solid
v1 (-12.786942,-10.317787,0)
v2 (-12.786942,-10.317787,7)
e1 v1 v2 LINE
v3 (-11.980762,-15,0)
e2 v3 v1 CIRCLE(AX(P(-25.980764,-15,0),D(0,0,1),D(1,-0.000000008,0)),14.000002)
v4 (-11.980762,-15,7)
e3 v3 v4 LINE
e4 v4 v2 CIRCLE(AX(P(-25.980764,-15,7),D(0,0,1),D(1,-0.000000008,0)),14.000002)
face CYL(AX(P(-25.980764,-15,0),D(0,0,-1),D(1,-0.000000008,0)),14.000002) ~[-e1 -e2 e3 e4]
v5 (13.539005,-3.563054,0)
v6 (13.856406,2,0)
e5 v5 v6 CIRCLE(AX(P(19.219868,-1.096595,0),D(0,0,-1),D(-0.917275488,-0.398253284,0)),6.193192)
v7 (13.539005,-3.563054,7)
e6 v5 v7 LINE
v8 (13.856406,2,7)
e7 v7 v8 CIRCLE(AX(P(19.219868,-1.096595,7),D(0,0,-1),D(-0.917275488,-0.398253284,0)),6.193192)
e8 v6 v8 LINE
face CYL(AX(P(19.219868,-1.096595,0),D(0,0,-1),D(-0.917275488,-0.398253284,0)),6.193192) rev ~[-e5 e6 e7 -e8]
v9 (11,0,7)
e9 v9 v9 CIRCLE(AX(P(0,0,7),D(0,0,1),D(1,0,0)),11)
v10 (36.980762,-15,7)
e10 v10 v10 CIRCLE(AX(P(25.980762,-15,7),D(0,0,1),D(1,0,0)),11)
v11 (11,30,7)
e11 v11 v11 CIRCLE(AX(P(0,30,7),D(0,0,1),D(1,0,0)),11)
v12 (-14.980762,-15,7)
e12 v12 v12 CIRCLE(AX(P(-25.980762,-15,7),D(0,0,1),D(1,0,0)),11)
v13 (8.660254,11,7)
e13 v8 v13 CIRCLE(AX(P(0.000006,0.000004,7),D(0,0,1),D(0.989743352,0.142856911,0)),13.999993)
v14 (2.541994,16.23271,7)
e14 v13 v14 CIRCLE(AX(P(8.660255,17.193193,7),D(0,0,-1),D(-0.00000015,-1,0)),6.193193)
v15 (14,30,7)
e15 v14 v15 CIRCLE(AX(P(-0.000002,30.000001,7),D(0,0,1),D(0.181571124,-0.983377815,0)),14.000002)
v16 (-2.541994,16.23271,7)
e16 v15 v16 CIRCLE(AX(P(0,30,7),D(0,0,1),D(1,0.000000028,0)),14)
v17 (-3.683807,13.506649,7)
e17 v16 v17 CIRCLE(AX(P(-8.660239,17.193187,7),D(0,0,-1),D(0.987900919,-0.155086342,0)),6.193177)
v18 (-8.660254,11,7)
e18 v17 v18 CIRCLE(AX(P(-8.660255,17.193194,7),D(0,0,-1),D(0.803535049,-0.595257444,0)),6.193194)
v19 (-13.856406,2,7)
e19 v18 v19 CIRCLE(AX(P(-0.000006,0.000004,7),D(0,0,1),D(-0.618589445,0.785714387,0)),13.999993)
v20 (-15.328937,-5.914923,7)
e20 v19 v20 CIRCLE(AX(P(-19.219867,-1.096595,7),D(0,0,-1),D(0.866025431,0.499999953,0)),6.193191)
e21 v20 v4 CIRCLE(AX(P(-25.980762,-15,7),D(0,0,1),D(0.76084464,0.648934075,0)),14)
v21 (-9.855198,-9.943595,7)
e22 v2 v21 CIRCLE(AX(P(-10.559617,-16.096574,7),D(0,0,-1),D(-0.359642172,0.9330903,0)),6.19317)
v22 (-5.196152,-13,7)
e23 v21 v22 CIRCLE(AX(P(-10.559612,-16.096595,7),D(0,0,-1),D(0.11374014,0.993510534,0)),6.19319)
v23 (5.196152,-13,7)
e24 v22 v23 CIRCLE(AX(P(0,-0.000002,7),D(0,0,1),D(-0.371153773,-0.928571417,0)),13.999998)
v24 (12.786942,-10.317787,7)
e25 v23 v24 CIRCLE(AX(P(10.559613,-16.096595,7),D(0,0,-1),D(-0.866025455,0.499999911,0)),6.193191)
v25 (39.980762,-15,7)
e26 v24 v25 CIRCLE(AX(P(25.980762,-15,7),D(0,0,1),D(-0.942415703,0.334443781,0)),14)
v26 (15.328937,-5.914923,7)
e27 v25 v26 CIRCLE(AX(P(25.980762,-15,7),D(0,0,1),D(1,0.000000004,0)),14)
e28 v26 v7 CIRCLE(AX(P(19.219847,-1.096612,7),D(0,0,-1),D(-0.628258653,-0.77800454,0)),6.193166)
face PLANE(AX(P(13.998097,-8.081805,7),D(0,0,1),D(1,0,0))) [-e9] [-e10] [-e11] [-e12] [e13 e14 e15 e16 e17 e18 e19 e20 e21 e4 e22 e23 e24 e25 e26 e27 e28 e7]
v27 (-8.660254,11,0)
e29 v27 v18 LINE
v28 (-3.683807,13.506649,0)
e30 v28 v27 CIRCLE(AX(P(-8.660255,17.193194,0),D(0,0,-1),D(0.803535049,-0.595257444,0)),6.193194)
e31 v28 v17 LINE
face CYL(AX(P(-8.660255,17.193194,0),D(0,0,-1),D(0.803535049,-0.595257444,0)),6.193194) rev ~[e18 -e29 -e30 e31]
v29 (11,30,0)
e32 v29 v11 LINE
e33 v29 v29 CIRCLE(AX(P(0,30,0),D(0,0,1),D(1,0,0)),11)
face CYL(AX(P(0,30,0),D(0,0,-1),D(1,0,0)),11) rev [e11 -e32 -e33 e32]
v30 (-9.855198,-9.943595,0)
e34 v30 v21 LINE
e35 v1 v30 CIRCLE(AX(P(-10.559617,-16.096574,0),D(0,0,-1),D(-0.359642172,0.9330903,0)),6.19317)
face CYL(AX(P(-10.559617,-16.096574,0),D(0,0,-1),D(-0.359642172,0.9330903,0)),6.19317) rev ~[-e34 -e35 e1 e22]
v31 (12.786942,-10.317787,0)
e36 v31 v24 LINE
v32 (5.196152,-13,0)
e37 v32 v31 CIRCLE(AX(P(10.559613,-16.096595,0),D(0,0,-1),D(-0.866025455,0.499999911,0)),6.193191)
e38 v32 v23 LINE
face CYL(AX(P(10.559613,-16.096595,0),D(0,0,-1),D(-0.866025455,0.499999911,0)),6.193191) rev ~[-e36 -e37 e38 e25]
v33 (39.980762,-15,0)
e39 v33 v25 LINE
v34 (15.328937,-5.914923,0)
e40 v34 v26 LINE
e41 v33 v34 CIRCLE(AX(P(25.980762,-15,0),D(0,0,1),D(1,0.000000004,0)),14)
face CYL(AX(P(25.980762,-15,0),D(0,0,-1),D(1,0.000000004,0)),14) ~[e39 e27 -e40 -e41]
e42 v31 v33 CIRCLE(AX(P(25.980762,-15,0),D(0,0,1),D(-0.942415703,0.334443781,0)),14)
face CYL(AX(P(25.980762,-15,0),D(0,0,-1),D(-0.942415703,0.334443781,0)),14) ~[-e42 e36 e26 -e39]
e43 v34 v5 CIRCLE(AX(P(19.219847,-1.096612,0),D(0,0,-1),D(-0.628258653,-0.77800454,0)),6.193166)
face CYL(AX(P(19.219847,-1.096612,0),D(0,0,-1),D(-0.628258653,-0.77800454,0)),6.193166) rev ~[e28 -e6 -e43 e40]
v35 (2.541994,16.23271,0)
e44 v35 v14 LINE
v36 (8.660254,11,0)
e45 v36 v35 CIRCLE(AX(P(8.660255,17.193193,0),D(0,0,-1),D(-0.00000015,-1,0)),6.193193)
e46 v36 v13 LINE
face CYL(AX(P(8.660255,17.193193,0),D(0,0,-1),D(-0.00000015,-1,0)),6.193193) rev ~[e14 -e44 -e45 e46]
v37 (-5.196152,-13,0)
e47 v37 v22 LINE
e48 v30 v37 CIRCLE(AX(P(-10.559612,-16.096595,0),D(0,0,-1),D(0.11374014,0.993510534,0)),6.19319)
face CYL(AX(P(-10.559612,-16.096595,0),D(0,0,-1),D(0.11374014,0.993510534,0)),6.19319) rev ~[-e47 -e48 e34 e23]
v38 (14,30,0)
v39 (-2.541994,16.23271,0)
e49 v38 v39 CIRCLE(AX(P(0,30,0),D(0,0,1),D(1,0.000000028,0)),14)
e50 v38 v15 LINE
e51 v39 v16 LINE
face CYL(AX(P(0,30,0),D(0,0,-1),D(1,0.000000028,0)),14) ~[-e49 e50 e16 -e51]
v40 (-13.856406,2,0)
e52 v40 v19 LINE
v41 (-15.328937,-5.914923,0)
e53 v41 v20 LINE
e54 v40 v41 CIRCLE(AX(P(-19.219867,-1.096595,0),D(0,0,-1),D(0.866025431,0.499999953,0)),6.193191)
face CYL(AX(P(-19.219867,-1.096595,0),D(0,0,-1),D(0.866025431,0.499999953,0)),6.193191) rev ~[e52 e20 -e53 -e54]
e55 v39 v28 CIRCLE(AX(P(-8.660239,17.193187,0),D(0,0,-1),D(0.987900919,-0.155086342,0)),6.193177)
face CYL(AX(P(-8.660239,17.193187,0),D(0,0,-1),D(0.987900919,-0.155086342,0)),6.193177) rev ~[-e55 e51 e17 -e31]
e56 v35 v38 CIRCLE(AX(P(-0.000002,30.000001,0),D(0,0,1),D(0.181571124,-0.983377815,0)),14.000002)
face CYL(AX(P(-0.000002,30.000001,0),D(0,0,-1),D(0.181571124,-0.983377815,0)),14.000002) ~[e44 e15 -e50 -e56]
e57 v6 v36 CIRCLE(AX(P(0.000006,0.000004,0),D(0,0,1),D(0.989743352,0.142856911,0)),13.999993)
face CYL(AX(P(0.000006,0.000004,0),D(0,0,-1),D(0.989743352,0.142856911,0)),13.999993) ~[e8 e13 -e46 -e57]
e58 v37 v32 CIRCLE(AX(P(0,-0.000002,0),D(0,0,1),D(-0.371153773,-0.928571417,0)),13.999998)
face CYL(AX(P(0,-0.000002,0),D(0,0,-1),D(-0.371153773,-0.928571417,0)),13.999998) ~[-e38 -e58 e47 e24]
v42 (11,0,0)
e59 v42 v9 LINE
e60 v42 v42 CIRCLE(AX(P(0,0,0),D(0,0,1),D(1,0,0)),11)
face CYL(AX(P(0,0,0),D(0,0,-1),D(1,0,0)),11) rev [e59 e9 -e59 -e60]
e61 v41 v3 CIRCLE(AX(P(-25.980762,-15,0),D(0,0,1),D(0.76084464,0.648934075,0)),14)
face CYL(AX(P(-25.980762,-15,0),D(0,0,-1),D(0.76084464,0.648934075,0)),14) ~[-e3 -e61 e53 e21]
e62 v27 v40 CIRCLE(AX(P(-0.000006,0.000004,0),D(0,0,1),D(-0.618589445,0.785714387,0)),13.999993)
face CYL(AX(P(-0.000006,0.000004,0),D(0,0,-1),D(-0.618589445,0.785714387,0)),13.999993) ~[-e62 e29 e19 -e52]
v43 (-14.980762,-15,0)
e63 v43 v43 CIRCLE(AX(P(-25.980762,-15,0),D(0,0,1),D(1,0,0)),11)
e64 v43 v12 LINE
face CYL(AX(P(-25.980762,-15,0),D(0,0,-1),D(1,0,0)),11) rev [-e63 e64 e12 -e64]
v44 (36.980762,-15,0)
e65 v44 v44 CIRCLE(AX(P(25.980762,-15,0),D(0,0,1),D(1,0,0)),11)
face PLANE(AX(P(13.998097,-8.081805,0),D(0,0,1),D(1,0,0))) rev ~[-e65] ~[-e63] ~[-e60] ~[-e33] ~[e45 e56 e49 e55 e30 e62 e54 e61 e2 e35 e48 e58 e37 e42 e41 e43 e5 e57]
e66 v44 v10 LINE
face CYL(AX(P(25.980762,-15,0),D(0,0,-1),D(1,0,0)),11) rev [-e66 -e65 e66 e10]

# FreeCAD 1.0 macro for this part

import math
import FreeCAD as App
import Part
import Sketcher

doc = App.newDocument("Part")
params = doc.addObject("Spreadsheet::Sheet", "Params")
for row, (alias, value) in enumerate([
    ("sketch1_diameter", "22 mm"),
    ("sketch1_diameter2", "22 mm"),
    ("sketch1_diameter3", "22 mm"),
    ("sketch1_diameter4", "22 mm"),
    ("sketch1_radius", "14 mm"),
    ("pad1_length", "7 mm"),
], start=1):
    params.set(f"A{row}", alias)
    params.set(f"B{row}", "=" + value)
    params.setAlias(f"B{row}", alias)

body = doc.addObject("PartDesign::Body", "Body")

sketch1 = body.newObject("Sketcher::SketchObject", "Sketch")
sketch1.AttachmentSupport = (doc.getObject("XY_Plane"), [""])
sketch1.MapMode = "FlatFace"
sketch1.addGeometry(Part.ArcOfCircle(Part.Circle(App.Vector(25.980762, -15, 0), App.Vector(0, 0, 1), 14), math.radians(0), math.radians(139.538716)), False)
sketch1.addGeometry(Part.ArcOfCircle(Part.Circle(App.Vector(19.219847, -1.096612, 0), App.Vector(0, 0, 1), 6.193166), math.radians(-156.531038), math.radians(-128.921766)), False)
sketch1.addGeometry(Part.ArcOfCircle(Part.Circle(App.Vector(19.219868, -1.096595, 0), App.Vector(0, 0, 1), 6.193192), math.radians(150.000011), math.radians(203.469028)), False)
sketch1.addGeometry(Part.ArcOfCircle(Part.Circle(App.Vector(0.000006, 0.000004, 0), App.Vector(0, 0, 1), 13.999993), math.radians(8.213197), math.radians(51.786799)), False)
sketch1.addGeometry(Part.ArcOfCircle(Part.Circle(App.Vector(8.660255, 17.193193, 0), App.Vector(0, 0, 1), 6.193193), math.radians(-171.078161), math.radians(-90.000009)), False)
sketch1.addGeometry(Part.ArcOfCircle(Part.Circle(App.Vector(-0.000002, 30.000001, 0), App.Vector(0, 0, 1), 14.000002), math.radians(-79.538713), math.radians(-0.000006)), False)
sketch1.addGeometry(Part.ArcOfCircle(Part.Circle(App.Vector(0, 30, 0), App.Vector(0, 0, 1), 14), math.radians(0.000002), math.radians(259.53872)), False)
sketch1.addGeometry(Part.ArcOfCircle(Part.Circle(App.Vector(-8.660239, 17.193187, 0), App.Vector(0, 0, 1), 6.193177), math.radians(-36.531026), math.radians(-8.921804)), False)
sketch1.addGeometry(Part.ArcOfCircle(Part.Circle(App.Vector(-8.660255, 17.193194, 0), App.Vector(0, 0, 1), 6.193194), math.radians(-89.99999), math.radians(-36.530987)), False)
sketch1.addGeometry(Part.ArcOfCircle(Part.Circle(App.Vector(-0.000006, 0.000004, 0), App.Vector(0, 0, 1), 13.999993), math.radians(128.213201), math.radians(171.786803)), False)
sketch1.addGeometry(Part.ArcOfCircle(Part.Circle(App.Vector(-19.219867, -1.096595, 0), App.Vector(0, 0, 1), 6.193191), math.radians(-51.078185), math.radians(29.999997)), False)
sketch1.addGeometry(Part.ArcOfCircle(Part.Circle(App.Vector(-25.980762, -15, 0), App.Vector(0, 0, 1), 14), math.radians(40.461284), math.radians(360)), False)
sketch1.addGeometry(Part.ArcOfCircle(Part.Circle(App.Vector(-25.980764, -15, 0), App.Vector(0, 0, 1), 14.000002), math.radians(0), math.radians(19.538715)), False)
sketch1.addGeometry(Part.ArcOfCircle(Part.Circle(App.Vector(-10.559617, -16.096574, 0), App.Vector(0, 0, 1), 6.19317), math.radians(83.468973), math.radians(111.078222)), False)
sketch1.addGeometry(Part.ArcOfCircle(Part.Circle(App.Vector(-10.559612, -16.096595, 0), App.Vector(0, 0, 1), 6.19319), math.radians(29.999996), math.radians(83.469036)), False)
sketch1.addGeometry(Part.ArcOfCircle(Part.Circle(App.Vector(0, -0.000002, 0), App.Vector(0, 0, 1), 13.999998), math.radians(-111.786791), math.radians(-68.213209)), False)
sketch1.addGeometry(Part.ArcOfCircle(Part.Circle(App.Vector(10.559613, -16.096595, 0), App.Vector(0, 0, 1), 6.193191), math.radians(68.921816), math.radians(150.000006)), False)
sketch1.addGeometry(Part.ArcOfCircle(Part.Circle(App.Vector(25.980762, -15, 0), App.Vector(0, 0, 1), 14), math.radians(160.461282), math.radians(360)), False)
sketch1.addGeometry(Part.Circle(App.Vector(-25.980762, -15, 0), App.Vector(0, 0, 1), 11), False)
sketch1.addGeometry(Part.Circle(App.Vector(25.980762, -15, 0), App.Vector(0, 0, 1), 11), False)
sketch1.addGeometry(Part.Circle(App.Vector(0, 0, 0), App.Vector(0, 0, 1), 11), False)
sketch1.addGeometry(Part.Circle(App.Vector(0, 30, 0), App.Vector(0, 0, 1), 11), False)
sketch1.addConstraint(Sketcher.Constraint("Coincident", 0, 2, 1, 2))
sketch1.addConstraint(Sketcher.Constraint("Coincident", 1, 1, 2, 2))
sketch1.addConstraint(Sketcher.Constraint("Coincident", 2, 1, 3, 1))
sketch1.addConstraint(Sketcher.Constraint("Coincident", 3, 2, 4, 2))
sketch1.addConstraint(Sketcher.Constraint("Coincident", 4, 1, 5, 1))
sketch1.addConstraint(Sketcher.Constraint("Coincident", 5, 2, 6, 1))
sketch1.addConstraint(Sketcher.Constraint("Coincident", 6, 2, 7, 2))
sketch1.addConstraint(Sketcher.Constraint("Coincident", 7, 1, 8, 2))
sketch1.addConstraint(Sketcher.Constraint("Coincident", 8, 1, 9, 1))
sketch1.addConstraint(Sketcher.Constraint("Coincident", 9, 2, 10, 2))
sketch1.addConstraint(Sketcher.Constraint("Coincident", 10, 1, 11, 1))
sketch1.addConstraint(Sketcher.Constraint("Coincident", 11, 2, 12, 1))
sketch1.addConstraint(Sketcher.Constraint("Coincident", 12, 2, 13, 2))
sketch1.addConstraint(Sketcher.Constraint("Coincident", 13, 1, 14, 2))
sketch1.addConstraint(Sketcher.Constraint("Coincident", 14, 1, 15, 1))
sketch1.addConstraint(Sketcher.Constraint("Coincident", 15, 2, 16, 2))
sketch1.addConstraint(Sketcher.Constraint("Coincident", 16, 1, 17, 1))
sketch1.addConstraint(Sketcher.Constraint("Coincident", 17, 2, 0, 1))
sketch1.addConstraint(Sketcher.Constraint("Coincident", 3, 3, -1, 1))
sketch1.addConstraint(Sketcher.Constraint("Coincident", 9, 3, -1, 1))
sketch1.addConstraint(Sketcher.Constraint("Coincident", 15, 3, -1, 1))
sketch1.addConstraint(Sketcher.Constraint("Coincident", 20, 3, -1, 1))
sketch1.addConstraint(Sketcher.Constraint("Coincident", 6, 3, 5, 3))
sketch1.addConstraint(Sketcher.Constraint("Coincident", 12, 3, 11, 3))
sketch1.addConstraint(Sketcher.Constraint("Coincident", 17, 3, 0, 3))
sketch1.addConstraint(Sketcher.Constraint("Coincident", 18, 3, 11, 3))
sketch1.addConstraint(Sketcher.Constraint("Coincident", 19, 3, 0, 3))
sketch1.addConstraint(Sketcher.Constraint("Coincident", 21, 3, 5, 3))
sketch1.addConstraint(Sketcher.Constraint("PointOnObject", 6, 3, -2))
sketch1.addConstraint(Sketcher.Constraint("Diameter", 18, 22.0))
sketch1.addConstraint(Sketcher.Constraint("Diameter", 19, 22.0))
sketch1.addConstraint(Sketcher.Constraint("Diameter", 20, 22.0))
sketch1.addConstraint(Sketcher.Constraint("Diameter", 21, 22.0))
sketch1.addConstraint(Sketcher.Constraint("Radius", 0, 14.0))
sketch1.addConstraint(Sketcher.Constraint("Radius", 6, 14.0))
sketch1.addConstraint(Sketcher.Constraint("Radius", 11, 14.0))
sketch1.addConstraint(Sketcher.Constraint("DistanceY", 0, 3, -1, 1, 15.0))
sketch1.addConstraint(Sketcher.Constraint("DistanceY", -1, 1, 5, 3, 30.000001))
sketch1.addConstraint(Sketcher.Constraint("DistanceY", 11, 3, -1, 1, 15.0))
sketch1.addConstraint(Sketcher.Constraint("DistanceY", -1, 1, 2, 1, 2.0))
sketch1.addConstraint(Sketcher.Constraint("DistanceY", -1, 1, 3, 2, 11.0))
sketch1.addConstraint(Sketcher.Constraint("DistanceY", -1, 1, 5, 2, 30.0))
sketch1.addConstraint(Sketcher.Constraint("DistanceY", -1, 1, 8, 1, 11.0))
sketch1.addConstraint(Sketcher.Constraint("DistanceY", -1, 1, 9, 2, 2.0))
sketch1.addConstraint(Sketcher.Constraint("DistanceY", 11, 2, -1, 1, 15.0))
sketch1.addConstraint(Sketcher.Constraint("DistanceY", 14, 1, -1, 1, 13.0))
sketch1.addConstraint(Sketcher.Constraint("DistanceY", 15, 2, -1, 1, 13.0))
sketch1.addConstraint(Sketcher.Constraint("DistanceY", 17, 2, -1, 1, 15.0))
sketch1.addConstraint(Sketcher.Constraint("DistanceY", 14, 3, 10, 3, 14.999999))
sketch1.addConstraint(Sketcher.Constraint("DistanceY", 16, 3, 2, 3, 15.0))
sketch1.addConstraint(Sketcher.Constraint("Radius", 10, 6.193191))
sketch1.addConstraint(Sketcher.Constraint("Radius", 13, 6.19317))
sketch1.addConstraint(Sketcher.Constraint("Radius", 14, 6.19319))
sketch1.addConstraint(Sketcher.Constraint("Radius", 16, 6.193191))
sketch1.addConstraint(Sketcher.Constraint("Radius", 1, 6.193166))
sketch1.addConstraint(Sketcher.Constraint("Radius", 2, 6.193192))
sketch1.addConstraint(Sketcher.Constraint("Radius", 3, 13.999993))
sketch1.addConstraint(Sketcher.Constraint("Radius", 4, 6.193193))
sketch1.addConstraint(Sketcher.Constraint("Radius", 7, 6.193177))
sketch1.addConstraint(Sketcher.Constraint("Radius", 8, 6.193194))
sketch1.addConstraint(Sketcher.Constraint("Radius", 9, 13.999993))
sketch1.addConstraint(Sketcher.Constraint("Radius", 15, 13.999998))
sketch1.addConstraint(Sketcher.Constraint("DistanceX", 3, 3, 1, 1, 13.538999))
sketch1.addConstraint(Sketcher.Constraint("DistanceY", 14, 3, 13, 1, 6.153))
sketch1.addConstraint(Sketcher.Constraint("DistanceY", 2, 3, 3, 3, 1.096599))
sketch1.addConstraint(Sketcher.Constraint("DistanceY", 1, 3, 7, 3, 18.289799))
sketch1.addConstraint(Sketcher.Constraint("DistanceY", 10, 3, 9, 3, 1.0966))
sketch1.addConstraint(Sketcher.Constraint("DistanceX", 7, 1, 4, 1, 6.225801))
sketch1.addConstraint(Sketcher.Constraint("DistanceX", -1, 1, 0, 3, 25.980762))
sketch1.addConstraint(Sketcher.Constraint("DistanceY", 1, 3, -1, 1, 1.096612))
sketch1.addConstraint(Sketcher.Constraint("DistanceX", 7, 3, -1, 1, 8.660239))
sketch1.addConstraint(Sketcher.Constraint("DistanceX", 11, 3, -1, 1, 25.980762))
sketch1.addConstraint(Sketcher.Constraint("DistanceY", -1, 1, 4, 1, 16.23271))
sketch1.addConstraint(Sketcher.Constraint("DistanceX", 10, 3, 13, 3, 8.66025))
sketch1.setExpression("Constraints[29]", "Params.sketch1_diameter")
sketch1.setExpression("Constraints[30]", "Params.sketch1_diameter2")
sketch1.setExpression("Constraints[31]", "Params.sketch1_diameter3")
sketch1.setExpression("Constraints[32]", "Params.sketch1_diameter4")
sketch1.setExpression("Constraints[33]", "Params.sketch1_radius")
pad1 = body.newObject("PartDesign::Pad", "Pad")
pad1.Profile = sketch1
pad1.setExpression("Length", "Params.pad1_length")

doc.recompute()
